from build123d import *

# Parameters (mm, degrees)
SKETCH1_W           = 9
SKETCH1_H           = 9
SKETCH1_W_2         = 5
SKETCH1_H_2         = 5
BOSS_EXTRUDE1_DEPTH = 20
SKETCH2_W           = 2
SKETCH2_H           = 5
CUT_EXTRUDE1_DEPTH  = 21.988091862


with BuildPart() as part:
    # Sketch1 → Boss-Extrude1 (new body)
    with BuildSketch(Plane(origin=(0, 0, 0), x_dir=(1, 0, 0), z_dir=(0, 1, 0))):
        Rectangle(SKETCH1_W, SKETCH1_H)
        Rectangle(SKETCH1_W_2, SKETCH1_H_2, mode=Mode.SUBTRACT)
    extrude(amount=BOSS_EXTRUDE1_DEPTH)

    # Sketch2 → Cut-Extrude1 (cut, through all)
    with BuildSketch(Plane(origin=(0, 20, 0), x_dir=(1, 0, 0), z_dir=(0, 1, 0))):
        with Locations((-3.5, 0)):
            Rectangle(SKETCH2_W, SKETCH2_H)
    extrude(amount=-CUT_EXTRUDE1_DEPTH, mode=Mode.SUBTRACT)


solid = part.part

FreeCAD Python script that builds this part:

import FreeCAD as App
import Part
import Sketcher

V = App.Vector
Q = App.Units.Quantity

doc = App.newDocument("Part")
params = doc.addObject("Spreadsheet::Sheet", "Params")
for row, (alias, value) in enumerate([
    ("sketch1_width", "9 mm"),
    ("sketch1_width2", "5 mm"),
    ("pad1_length", "20 mm"),
    ("sketch2_width", "2 mm"),
    ("sketch2_height", "5 mm"),
], start=1):
    params.set(f"A{row}", alias)
    params.set(f"B{row}", "=" + value)
    params.setAlias(f"B{row}", alias)

body = doc.addObject("PartDesign::Body", "Body")

sketch1 = body.newObject("Sketcher::SketchObject", "Sketch")
sketch1.AttachmentSupport = (doc.getObject("XZ_Plane"), [""])
sketch1.MapMode = "FlatFace"
sketch1.addGeometry([
    Part.LineSegment(V(-4, -4, 0), V(-4, 4, 0)),
    Part.LineSegment(V(-4, 4, 0), V(4, 4, 0)),
    Part.LineSegment(V(4, 4, 0), V(4, -4, 0)),
    Part.LineSegment(V(4, -4, 0), V(-4, -4, 0)),
    Part.LineSegment(V(2, 2, 0), V(-2, 2, 0)),
    Part.LineSegment(V(-2, 2, 0), V(-2, -2, 0)),
    Part.LineSegment(V(-2, -2, 0), V(2, -2, 0)),
    Part.LineSegment(V(2, -2, 0), V(2, 2, 0)),
], False)
sketch1.addConstraint([
    Sketcher.Constraint("Coincident", 0, 2, 1, 1),
    Sketcher.Constraint("Coincident", 1, 2, 2, 1),
    Sketcher.Constraint("Coincident", 2, 2, 3, 1),
    Sketcher.Constraint("Coincident", 3, 2, 0, 1),
    Sketcher.Constraint("Coincident", 4, 2, 5, 1),
    Sketcher.Constraint("Coincident", 5, 2, 6, 1),
    Sketcher.Constraint("Coincident", 6, 2, 7, 1),
    Sketcher.Constraint("Coincident", 7, 2, 4, 1),
    Sketcher.Constraint("Vertical", 0),
    Sketcher.Constraint("Horizontal", 1),
    Sketcher.Constraint("Vertical", 2),
    Sketcher.Constraint("Horizontal", 3),
    Sketcher.Constraint("Horizontal", 4),
    Sketcher.Constraint("Vertical", 5),
    Sketcher.Constraint("Horizontal", 6),
    Sketcher.Constraint("Vertical", 7),
    Sketcher.Constraint("Symmetric", 0, 2, 2, 2, -1, 1),
    Sketcher.Constraint("Symmetric", 4, 2, 6, 2, -1, 1),
    Sketcher.Constraint("Equal", 3, 0),
    Sketcher.Constraint("Equal", 6, 5),
    Sketcher.Constraint("DistanceX", 1, 1, 1, 2, Q("9 mm")),
    Sketcher.Constraint("DistanceX", 4, 2, 4, 1, Q("5 mm")),
])
sketch1.setExpression("Constraints[20]", "Params.sketch1_width")
sketch1.setExpression("Constraints[21]", "Params.sketch1_width2")
pad1 = body.newObject("PartDesign::Pad", "Pad")
pad1.Profile = sketch1
pad1.setExpression("Length", "Params.pad1_length")
pad1.Reversed = True

sketch2 = body.newObject("Sketcher::SketchObject", "Sketch001")
sketch2.AttachmentSupport = (doc.getObject("XZ_Plane"), [""])
sketch2.MapMode = "FlatFace"
sketch2.AttachmentOffset = App.Placement(V(0, 0, -20), App.Rotation())
sketch2.addGeometry([
    Part.LineSegment(V(-4.5, -2.5, 0), V(-4.5, 2.5, 0)),
    Part.LineSegment(V(-4.5, 2.5, 0), V(-2.5, 2.5, 0)),
    Part.LineSegment(V(-2.5, 2.5, 0), V(-2.5, -2.5, 0)),
    Part.LineSegment(V(-2.5, -2.5, 0), V(-4.5, -2.5, 0)),
], False)
sketch2.addConstraint([
    Sketcher.Constraint("Coincident", 0, 2, 1, 1),
    Sketcher.Constraint("Coincident", 1, 2, 2, 1),
    Sketcher.Constraint("Coincident", 2, 2, 3, 1),
    Sketcher.Constraint("Coincident", 3, 2, 0, 1),
    Sketcher.Constraint("Vertical", 0),
    Sketcher.Constraint("Horizontal", 1),
    Sketcher.Constraint("Vertical", 2),
    Sketcher.Constraint("Horizontal", 3),
    Sketcher.Constraint("DistanceX", 1, 1, 1, 2, Q("2 mm")),
    Sketcher.Constraint("DistanceY", 0, 1, 0, 2, Q("5 mm")),
    Sketcher.Constraint("DistanceX", 0, 2, -1, 1, Q("4.5 mm")),
    Sketcher.Constraint("DistanceY", -1, 1, 0, 2, Q("2.5 mm")),
])
sketch2.setExpression("Constraints[8]", "Params.sketch2_width")
sketch2.setExpression("Constraints[9]", "Params.sketch2_height")
pocket1 = body.newObject("PartDesign::Pocket", "Pocket")
pocket1.Profile = sketch2
pocket1.Type = "ThroughAll"
pocket1.Reversed = True

doc.recompute()
